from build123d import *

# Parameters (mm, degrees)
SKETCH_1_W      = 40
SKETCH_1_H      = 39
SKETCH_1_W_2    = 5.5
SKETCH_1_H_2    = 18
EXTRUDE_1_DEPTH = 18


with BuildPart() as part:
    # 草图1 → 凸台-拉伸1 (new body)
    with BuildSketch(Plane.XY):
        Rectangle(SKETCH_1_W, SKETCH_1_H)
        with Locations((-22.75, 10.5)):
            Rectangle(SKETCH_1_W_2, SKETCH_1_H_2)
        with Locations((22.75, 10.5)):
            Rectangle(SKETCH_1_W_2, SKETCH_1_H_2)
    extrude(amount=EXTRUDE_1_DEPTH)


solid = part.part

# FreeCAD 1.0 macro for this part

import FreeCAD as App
import Part
import Sketcher


def add_polygon(sketch, points):
    """Adds a closed chain of lines whose ends are joined by coincident constraints."""
    first, n = sketch.GeometryCount, len(points)
    for a, b in zip(points, points[1:] + points[:1]):
        sketch.addGeometry(Part.LineSegment(App.Vector(*a, 0), App.Vector(*b, 0)), False)
    for i in range(n):
        sketch.addConstraint(Sketcher.Constraint("Coincident", first + i, 2, first + (i + 1) % n, 1))

doc = App.newDocument("Part")
params = doc.addObject("Spreadsheet::Sheet", "Params")
for row, (alias, value) in enumerate([
    ("sketch1_width", "40 mm"),
    ("sketch1_width2", "51 mm"),
    ("sketch1_height", "21 mm"),
    ("sketch1_height2", "18 mm"),
    ("pad1_length", "18 mm"),
], start=1):
    params.set(f"A{row}", alias)
    params.set(f"B{row}", "=" + value)
    params.setAlias(f"B{row}", alias)

body = doc.addObject("PartDesign::Body", "Body")

# Sketch on XY plane
sketch1 = body.newObject("Sketcher::SketchObject", "Sketch")
sketch1.AttachmentSupport = (doc.getObject("XY_Plane"), [""])
sketch1.MapMode = "FlatFace"
add_polygon(sketch1, [(-20, 2), (-20, -20), (20, -20), (20, 2), (26, 2), (26, 20), (-26, 20), (-26, 2)])  # lines 0-7
sketch1.addConstraint(Sketcher.Constraint("Vertical", 0))
sketch1.addConstraint(Sketcher.Constraint("Horizontal", 1))
sketch1.addConstraint(Sketcher.Constraint("Vertical", 2))
sketch1.addConstraint(Sketcher.Constraint("Horizontal", 3))
sketch1.addConstraint(Sketcher.Constraint("Vertical", 4))
sketch1.addConstraint(Sketcher.Constraint("Horizontal", 5))
sketch1.addConstraint(Sketcher.Constraint("Vertical", 6))
sketch1.addConstraint(Sketcher.Constraint("Horizontal", 7))
sketch1.addConstraint(Sketcher.Constraint("Symmetric", 3, 2, 6, 2, -2))
sketch1.addConstraint(Sketcher.Constraint("Equal", 3, 7))
sketch1.addConstraint(Sketcher.Constraint("DistanceX", 1, 1, 1, 2, 40.0))
sketch1.addConstraint(Sketcher.Constraint("DistanceX", 5, 2, 5, 1, 51.0))
sketch1.addConstraint(Sketcher.Constraint("DistanceY", 0, 2, 0, 1, 21.0))
sketch1.addConstraint(Sketcher.Constraint("DistanceY", 4, 1, 4, 2, 18.0))
sketch1.addConstraint(Sketcher.Constraint("DistanceY", 0, 2, -1, 1, 19.5))
sketch1.setExpression("Constraints[18]", "Params.sketch1_width")
sketch1.setExpression("Constraints[19]", "Params.sketch1_width2")
sketch1.setExpression("Constraints[20]", "Params.sketch1_height")
sketch1.setExpression("Constraints[21]", "Params.sketch1_height2")
pad1 = body.newObject("PartDesign::Pad", "Pad")
pad1.Profile = sketch1
pad1.setExpression("Length", "Params.pad1_length")

doc.recompute()
